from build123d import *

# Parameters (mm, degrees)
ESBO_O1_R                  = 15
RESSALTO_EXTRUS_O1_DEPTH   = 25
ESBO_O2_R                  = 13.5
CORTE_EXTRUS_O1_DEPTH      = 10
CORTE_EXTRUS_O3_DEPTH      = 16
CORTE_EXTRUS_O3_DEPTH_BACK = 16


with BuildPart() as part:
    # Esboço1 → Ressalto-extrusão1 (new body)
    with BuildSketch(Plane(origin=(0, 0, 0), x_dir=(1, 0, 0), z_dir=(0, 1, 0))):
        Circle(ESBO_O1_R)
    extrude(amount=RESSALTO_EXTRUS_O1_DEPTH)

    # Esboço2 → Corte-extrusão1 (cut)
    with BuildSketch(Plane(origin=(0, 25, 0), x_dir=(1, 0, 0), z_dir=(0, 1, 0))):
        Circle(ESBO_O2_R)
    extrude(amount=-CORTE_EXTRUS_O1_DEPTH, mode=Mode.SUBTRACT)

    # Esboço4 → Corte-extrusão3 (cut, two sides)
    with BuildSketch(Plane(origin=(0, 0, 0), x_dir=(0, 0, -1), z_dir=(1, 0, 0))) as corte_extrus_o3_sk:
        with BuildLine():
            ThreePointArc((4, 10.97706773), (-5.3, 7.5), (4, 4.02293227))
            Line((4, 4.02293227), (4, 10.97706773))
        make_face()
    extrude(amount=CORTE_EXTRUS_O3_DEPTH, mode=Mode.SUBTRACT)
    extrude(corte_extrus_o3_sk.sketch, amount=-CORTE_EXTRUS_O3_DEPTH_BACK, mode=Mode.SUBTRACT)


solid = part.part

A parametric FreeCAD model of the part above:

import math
import FreeCAD as App
import Part
import Sketcher
Q = App.Units.Quantity

doc = App.newDocument("Part")
params = doc.addObject("Spreadsheet::Sheet", "Params")
for row, (alias, value) in enumerate([
    ("sketch1_diameter", "30 mm"),
    ("pad1_length", "25 mm"),
    ("sketch2_diameter", "27 mm"),
    ("pocket1_length", "10 mm"),
    ("sketch3_radius", "5.3 mm"),
], start=1):
    params.set(f"A{row}", alias)
    params.set(f"B{row}", "=" + value)
    params.setAlias(f"B{row}", alias)

body = doc.addObject("PartDesign::Body", "Body")

# Sketch on XZ plane
sketch1 = body.newObject("Sketcher::SketchObject", "Sketch")
sketch1.AttachmentSupport = (doc.getObject("XZ_Plane"), [""])
sketch1.MapMode = "FlatFace"
sketch1.addGeometry(Part.Circle(App.Vector(0, 0, 0), App.Vector(0, 0, 1), 15), False)
sketch1.addConstraint(Sketcher.Constraint("Coincident", 0, 3, -1, 1))
sketch1.addConstraint(Sketcher.Constraint("Diameter", 0, Q("30 mm")))
sketch1.setExpression("Constraints[1]", "Params.sketch1_diameter")
pad1 = body.newObject("PartDesign::Pad", "Pad")
pad1.Profile = sketch1
pad1.setExpression("Length", "Params.pad1_length")
pad1.Reversed = True

# Sketch on XZ plane
sketch2 = body.newObject("Sketcher::SketchObject", "Sketch001")
sketch2.AttachmentSupport = (doc.getObject("XZ_Plane"), [""])
sketch2.MapMode = "FlatFace"
sketch2.AttachmentOffset = App.Placement(App.Vector(0, 0, -25), App.Rotation())
sketch2.addGeometry(Part.Circle(App.Vector(0, 0, 0), App.Vector(0, 0, 1), 14), False)
sketch2.addConstraint(Sketcher.Constraint("Coincident", 0, 3, -1, 1))
sketch2.addConstraint(Sketcher.Constraint("Diameter", 0, Q("27 mm")))
sketch2.setExpression("Constraints[1]", "Params.sketch2_diameter")
pocket1 = body.newObject("PartDesign::Pocket", "Pocket")
pocket1.Profile = sketch2
pocket1.setExpression("Length", "Params.pocket1_length")
pocket1.Reversed = True

# Sketch on YZ plane
sketch3 = body.newObject("Sketcher::SketchObject", "Sketch002")
sketch3.AttachmentSupport = (doc.getObject("YZ_Plane"), [""])
sketch3.MapMode = "FlatFace"
sketch3.addGeometry(Part.ArcOfCircle(Part.Circle(App.Vector(8, 0, 0), App.Vector(0, 0, 1), 5), math.radians(-49), math.radians(229)), False)
sketch3.addGeometry(Part.LineSegment(App.Vector(4, -4, 0), App.Vector(11, -4, 0)), False)
sketch3.addConstraint(Sketcher.Constraint("Coincident", 0, 1, 1, 2))
sketch3.addConstraint(Sketcher.Constraint("Coincident", 1, 1, 0, 2))
sketch3.addConstraint(Sketcher.Constraint("Horizontal", 1))
sketch3.addConstraint(Sketcher.Constraint("PointOnObject", 0, 3, -1))
sketch3.addConstraint(Sketcher.Constraint("Radius", 0, Q("5.3 mm")))
sketch3.addConstraint(Sketcher.Constraint("DistanceY", 0, 1, -1, 1, Q("4 mm")))
sketch3.addConstraint(Sketcher.Constraint("DistanceX", -1, 1, 0, 3, Q("7.5 mm")))
sketch3.setExpression("Constraints[4]", "Params.sketch3_radius")
pocket2 = body.newObject("PartDesign::Pocket", "Pocket001")
pocket2.Profile = sketch3
pocket2.Type = "ThroughAll"
pocket2.Midplane = True

doc.recompute()
